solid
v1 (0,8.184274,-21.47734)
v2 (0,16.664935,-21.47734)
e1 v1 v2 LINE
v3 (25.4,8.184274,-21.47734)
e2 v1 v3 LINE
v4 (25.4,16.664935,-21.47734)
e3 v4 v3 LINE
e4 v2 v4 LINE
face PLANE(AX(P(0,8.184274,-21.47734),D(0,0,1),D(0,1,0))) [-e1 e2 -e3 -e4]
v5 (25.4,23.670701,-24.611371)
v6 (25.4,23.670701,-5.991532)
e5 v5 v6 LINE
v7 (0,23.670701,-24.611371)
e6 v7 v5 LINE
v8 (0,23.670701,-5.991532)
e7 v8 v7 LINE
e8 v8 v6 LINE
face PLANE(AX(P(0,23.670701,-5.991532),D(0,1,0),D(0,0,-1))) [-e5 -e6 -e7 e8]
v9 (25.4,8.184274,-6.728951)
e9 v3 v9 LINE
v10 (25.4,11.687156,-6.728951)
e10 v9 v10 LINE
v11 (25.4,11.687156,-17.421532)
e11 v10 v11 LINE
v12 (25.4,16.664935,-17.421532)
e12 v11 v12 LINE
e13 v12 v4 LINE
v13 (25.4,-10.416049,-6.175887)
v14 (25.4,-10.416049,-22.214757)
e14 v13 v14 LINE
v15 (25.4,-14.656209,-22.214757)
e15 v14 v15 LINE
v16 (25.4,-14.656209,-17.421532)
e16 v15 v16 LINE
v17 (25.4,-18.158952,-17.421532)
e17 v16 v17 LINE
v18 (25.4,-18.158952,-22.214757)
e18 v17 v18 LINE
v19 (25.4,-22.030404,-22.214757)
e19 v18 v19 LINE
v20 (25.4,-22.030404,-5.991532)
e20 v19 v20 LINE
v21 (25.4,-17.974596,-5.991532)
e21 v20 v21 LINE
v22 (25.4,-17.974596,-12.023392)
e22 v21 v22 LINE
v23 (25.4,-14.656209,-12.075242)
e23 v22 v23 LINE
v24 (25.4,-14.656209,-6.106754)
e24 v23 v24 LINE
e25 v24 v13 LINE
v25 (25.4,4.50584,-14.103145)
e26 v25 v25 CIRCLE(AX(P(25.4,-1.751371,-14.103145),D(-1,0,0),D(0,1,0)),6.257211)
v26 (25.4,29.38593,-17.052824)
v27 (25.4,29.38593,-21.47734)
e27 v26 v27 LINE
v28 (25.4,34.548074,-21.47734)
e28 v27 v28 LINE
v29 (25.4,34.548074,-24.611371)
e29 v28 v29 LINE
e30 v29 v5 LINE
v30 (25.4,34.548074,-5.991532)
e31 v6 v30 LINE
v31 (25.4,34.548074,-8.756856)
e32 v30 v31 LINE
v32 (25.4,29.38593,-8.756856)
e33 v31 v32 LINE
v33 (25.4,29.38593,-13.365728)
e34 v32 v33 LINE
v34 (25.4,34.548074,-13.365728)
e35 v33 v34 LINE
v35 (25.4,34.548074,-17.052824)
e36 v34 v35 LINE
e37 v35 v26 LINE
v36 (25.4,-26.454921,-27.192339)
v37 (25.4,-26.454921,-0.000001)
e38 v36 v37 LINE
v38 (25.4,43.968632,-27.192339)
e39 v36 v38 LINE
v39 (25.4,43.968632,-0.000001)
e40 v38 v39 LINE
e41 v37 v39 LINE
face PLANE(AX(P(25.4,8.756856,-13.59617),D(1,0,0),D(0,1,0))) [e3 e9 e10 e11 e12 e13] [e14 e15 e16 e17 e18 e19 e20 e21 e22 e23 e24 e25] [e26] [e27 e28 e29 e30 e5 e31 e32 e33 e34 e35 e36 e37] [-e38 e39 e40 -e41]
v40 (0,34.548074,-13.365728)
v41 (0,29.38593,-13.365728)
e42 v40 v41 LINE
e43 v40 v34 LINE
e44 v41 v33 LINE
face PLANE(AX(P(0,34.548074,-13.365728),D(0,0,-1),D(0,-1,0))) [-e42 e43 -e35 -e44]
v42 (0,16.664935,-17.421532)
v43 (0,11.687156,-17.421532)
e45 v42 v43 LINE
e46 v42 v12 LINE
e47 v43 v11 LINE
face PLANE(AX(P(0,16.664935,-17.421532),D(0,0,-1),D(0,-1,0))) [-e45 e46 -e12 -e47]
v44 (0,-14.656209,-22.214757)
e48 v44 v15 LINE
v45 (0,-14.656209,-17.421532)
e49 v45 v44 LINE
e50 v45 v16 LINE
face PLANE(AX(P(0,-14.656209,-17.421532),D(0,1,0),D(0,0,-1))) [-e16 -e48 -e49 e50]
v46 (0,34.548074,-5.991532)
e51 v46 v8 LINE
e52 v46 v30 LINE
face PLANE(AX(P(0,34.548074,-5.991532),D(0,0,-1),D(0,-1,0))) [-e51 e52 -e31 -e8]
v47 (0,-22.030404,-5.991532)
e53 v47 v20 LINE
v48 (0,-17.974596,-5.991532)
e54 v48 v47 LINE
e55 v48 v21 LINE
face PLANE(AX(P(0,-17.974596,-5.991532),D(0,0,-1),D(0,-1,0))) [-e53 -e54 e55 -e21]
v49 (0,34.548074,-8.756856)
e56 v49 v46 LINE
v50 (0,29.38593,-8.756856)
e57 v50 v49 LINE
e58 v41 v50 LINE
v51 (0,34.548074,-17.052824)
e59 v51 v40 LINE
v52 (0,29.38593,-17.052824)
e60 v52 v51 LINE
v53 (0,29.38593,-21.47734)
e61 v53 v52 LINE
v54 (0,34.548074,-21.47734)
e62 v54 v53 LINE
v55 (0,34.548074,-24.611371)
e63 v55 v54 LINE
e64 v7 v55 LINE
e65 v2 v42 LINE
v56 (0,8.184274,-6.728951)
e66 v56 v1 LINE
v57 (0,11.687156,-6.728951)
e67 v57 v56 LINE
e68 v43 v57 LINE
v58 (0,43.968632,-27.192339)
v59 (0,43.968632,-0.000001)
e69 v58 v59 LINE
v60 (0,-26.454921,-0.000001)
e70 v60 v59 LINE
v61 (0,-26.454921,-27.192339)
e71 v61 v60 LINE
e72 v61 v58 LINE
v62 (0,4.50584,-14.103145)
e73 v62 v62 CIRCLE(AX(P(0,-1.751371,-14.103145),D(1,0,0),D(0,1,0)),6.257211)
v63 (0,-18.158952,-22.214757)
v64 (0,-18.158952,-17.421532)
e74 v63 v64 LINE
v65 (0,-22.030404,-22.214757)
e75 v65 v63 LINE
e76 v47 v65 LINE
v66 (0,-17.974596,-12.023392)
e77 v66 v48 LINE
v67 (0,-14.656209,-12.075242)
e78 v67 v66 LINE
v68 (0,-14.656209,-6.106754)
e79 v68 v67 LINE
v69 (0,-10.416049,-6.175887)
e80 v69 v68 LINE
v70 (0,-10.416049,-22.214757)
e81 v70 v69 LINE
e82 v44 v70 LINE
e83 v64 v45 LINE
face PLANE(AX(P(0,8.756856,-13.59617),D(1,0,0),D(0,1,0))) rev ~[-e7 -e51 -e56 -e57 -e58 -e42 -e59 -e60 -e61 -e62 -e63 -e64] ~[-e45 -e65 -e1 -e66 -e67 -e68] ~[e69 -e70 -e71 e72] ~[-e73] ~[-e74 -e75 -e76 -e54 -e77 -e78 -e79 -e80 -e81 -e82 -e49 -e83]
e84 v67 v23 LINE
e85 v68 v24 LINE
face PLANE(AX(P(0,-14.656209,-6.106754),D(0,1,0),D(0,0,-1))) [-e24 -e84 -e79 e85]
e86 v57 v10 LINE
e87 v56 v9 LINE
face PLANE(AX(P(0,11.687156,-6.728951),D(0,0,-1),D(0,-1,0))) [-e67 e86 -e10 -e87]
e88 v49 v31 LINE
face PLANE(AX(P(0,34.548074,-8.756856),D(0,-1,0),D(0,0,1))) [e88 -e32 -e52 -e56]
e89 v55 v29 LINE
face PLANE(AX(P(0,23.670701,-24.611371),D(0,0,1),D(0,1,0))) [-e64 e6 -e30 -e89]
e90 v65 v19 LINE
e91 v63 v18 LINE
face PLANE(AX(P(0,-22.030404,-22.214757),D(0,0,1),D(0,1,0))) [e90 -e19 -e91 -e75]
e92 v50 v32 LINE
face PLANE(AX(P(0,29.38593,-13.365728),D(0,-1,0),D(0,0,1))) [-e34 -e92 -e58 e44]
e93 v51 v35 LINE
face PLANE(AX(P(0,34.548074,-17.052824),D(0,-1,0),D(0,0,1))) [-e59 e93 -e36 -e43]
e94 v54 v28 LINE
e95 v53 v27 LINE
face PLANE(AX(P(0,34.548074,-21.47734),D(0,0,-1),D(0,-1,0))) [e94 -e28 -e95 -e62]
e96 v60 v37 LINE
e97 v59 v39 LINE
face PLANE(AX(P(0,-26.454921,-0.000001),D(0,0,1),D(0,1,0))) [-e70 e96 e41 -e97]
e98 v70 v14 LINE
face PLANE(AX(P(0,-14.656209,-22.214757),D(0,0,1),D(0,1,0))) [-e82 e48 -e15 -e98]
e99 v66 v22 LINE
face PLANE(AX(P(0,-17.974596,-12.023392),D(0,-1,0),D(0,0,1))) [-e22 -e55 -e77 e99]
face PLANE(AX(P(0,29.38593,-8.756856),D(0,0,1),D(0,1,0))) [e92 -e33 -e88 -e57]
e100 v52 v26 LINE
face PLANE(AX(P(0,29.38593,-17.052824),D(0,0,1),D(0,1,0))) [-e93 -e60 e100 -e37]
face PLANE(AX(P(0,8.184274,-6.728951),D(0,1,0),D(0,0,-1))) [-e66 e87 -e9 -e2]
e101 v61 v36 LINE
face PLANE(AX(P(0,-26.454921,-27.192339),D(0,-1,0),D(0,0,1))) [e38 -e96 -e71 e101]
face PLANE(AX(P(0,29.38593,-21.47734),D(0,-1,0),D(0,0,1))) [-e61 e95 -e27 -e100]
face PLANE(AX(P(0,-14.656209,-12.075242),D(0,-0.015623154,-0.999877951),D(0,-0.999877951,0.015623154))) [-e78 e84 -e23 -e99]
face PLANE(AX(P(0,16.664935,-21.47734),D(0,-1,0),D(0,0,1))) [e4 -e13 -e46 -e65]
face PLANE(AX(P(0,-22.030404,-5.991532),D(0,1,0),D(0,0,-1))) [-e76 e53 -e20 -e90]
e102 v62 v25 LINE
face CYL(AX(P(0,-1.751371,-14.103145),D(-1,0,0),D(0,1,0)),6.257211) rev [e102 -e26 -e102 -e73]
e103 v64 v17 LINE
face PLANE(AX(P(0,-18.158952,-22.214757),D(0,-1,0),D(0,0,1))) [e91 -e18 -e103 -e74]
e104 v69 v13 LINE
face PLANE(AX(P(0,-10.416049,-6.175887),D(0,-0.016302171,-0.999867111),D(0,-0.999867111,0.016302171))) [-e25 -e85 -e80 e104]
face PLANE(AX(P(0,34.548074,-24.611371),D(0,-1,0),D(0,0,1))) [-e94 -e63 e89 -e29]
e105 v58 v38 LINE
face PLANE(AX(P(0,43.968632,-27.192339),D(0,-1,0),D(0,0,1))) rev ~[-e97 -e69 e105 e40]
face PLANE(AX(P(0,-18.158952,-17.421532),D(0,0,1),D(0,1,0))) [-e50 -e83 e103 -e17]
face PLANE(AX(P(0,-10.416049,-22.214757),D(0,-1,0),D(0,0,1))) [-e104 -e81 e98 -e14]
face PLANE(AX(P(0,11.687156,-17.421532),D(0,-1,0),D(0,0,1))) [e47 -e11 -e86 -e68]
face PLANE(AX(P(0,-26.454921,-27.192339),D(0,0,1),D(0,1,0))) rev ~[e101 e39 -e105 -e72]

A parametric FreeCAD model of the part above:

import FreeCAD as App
import Part
import Sketcher
Q = App.Units.Quantity


def add_polygon(sketch, points):
    """Adds a closed chain of lines whose ends are joined by coincident constraints."""
    first, n = sketch.GeometryCount, len(points)
    for a, b in zip(points, points[1:] + points[:1]):
        sketch.addGeometry(Part.LineSegment(App.Vector(*a, 0), App.Vector(*b, 0)), False)
    for i in range(n):
        sketch.addConstraint(Sketcher.Constraint("Coincident", first + i, 2, first + (i + 1) % n, 1))

doc = App.newDocument("Part")
body = doc.addObject("PartDesign::Body", "Body")

sketch1 = body.newObject("Sketcher::SketchObject", "Sketch")
sketch1.AttachmentSupport = (doc.getObject("YZ_Plane"), [""])
sketch1.MapMode = "FlatFace"
add_polygon(sketch1, [(-26, 0), (-26, -27), (44, -27), (44, 0)])
sketch1.addConstraint(Sketcher.Constraint("Vertical", 0))
sketch1.addConstraint(Sketcher.Constraint("Horizontal", 1))
sketch1.addConstraint(Sketcher.Constraint("Vertical", 2))
sketch1.addConstraint(Sketcher.Constraint("Horizontal", 3))
sketch1.addConstraint(Sketcher.Constraint("PointOnObject", 2, 2, -1))
sketch1.addConstraint(Sketcher.Constraint("DistanceY", 0, 2, 0, 1, Q("27.192339 mm")))
sketch1.addConstraint(Sketcher.Constraint("DistanceX", 1, 1, 1, 2, Q("70.423553 mm")))
sketch1.addConstraint(Sketcher.Constraint("DistanceX", 0, 2, -1, 1, Q("26.454921 mm")))
pad1 = body.newObject("PartDesign::Pad", "Pad")
pad1.Profile = sketch1
pad1.Length = Q("1 in")

sketch2 = body.newObject("Sketcher::SketchObject", "Sketch001")
sketch2.AttachmentSupport = (doc.getObject("YZ_Plane"), [""])
sketch2.MapMode = "FlatFace"
sketch2.addGeometry(Part.Circle(App.Vector(-1.8, -14.1, 0), App.Vector(0, 0, 1), 6.3), False)
add_polygon(sketch2, [(-18, -6), (-22, -6), (-22, -22.2), (-18.2, -22.2), (-18.2, -17.4), (-14.7, -17.4), (-14.7, -22.2), (-10.4, -22.2), (-10.4, -6.2), (-14.7, -6.1), (-14.7, -12.1), (-18, -12)])
add_polygon(sketch2, [(11.7, -6.7), (8.2, -6.7), (8.2, -21.5), (16.7, -21.5), (16.7, -17.4), (11.7, -17.4)])
add_polygon(sketch2, [(34.5, -6), (23.7, -6), (23.7, -24.6), (34.5, -24.6), (34.5, -21.5), (29.4, -21.5), (29.4, -17.1), (34.5, -17.1), (34.5, -13.4), (29.4, -13.4), (29.4, -8.8), (34.5, -8.8)])
sketch2.addConstraint(Sketcher.Constraint("Horizontal", 1))
sketch2.addConstraint(Sketcher.Constraint("Vertical", 2))
sketch2.addConstraint(Sketcher.Constraint("Horizontal", 3))
sketch2.addConstraint(Sketcher.Constraint("Vertical", 4))
sketch2.addConstraint(Sketcher.Constraint("Horizontal", 5))
sketch2.addConstraint(Sketcher.Constraint("Vertical", 6))
sketch2.addConstraint(Sketcher.Constraint("Horizontal", 7))
sketch2.addConstraint(Sketcher.Constraint("Vertical", 8))
sketch2.addConstraint(Sketcher.Constraint("Vertical", 10))
sketch2.addConstraint(Sketcher.Constraint("Vertical", 12))
sketch2.addConstraint(Sketcher.Constraint("Horizontal", 13))
sketch2.addConstraint(Sketcher.Constraint("Vertical", 14))
sketch2.addConstraint(Sketcher.Constraint("Horizontal", 15))
sketch2.addConstraint(Sketcher.Constraint("Vertical", 16))
sketch2.addConstraint(Sketcher.Constraint("Horizontal", 17))
sketch2.addConstraint(Sketcher.Constraint("Vertical", 18))
sketch2.addConstraint(Sketcher.Constraint("Horizontal", 19))
sketch2.addConstraint(Sketcher.Constraint("Vertical", 20))
sketch2.addConstraint(Sketcher.Constraint("Horizontal", 21))
sketch2.addConstraint(Sketcher.Constraint("Vertical", 22))
sketch2.addConstraint(Sketcher.Constraint("Horizontal", 23))
sketch2.addConstraint(Sketcher.Constraint("Vertical", 24))
sketch2.addConstraint(Sketcher.Constraint("Horizontal", 25))
sketch2.addConstraint(Sketcher.Constraint("Vertical", 26))
sketch2.addConstraint(Sketcher.Constraint("Horizontal", 27))
sketch2.addConstraint(Sketcher.Constraint("Vertical", 28))
sketch2.addConstraint(Sketcher.Constraint("Horizontal", 29))
sketch2.addConstraint(Sketcher.Constraint("Vertical", 30))
sketch2.addConstraint(Sketcher.Constraint("Horizontal", 3, 2, 6, 2))
sketch2.addConstraint(Sketcher.Constraint("Horizontal", 5, 2, 16, 2))
sketch2.addConstraint(Sketcher.Constraint("Horizontal", 12, 2, 19, 2))
sketch2.addConstraint(Sketcher.Constraint("Horizontal", 15, 2, 22, 2))
sketch2.addConstraint(Sketcher.Constraint("Vertical", 6, 2, 9, 2))
sketch2.addConstraint(Sketcher.Constraint("Vertical", 22, 2, 25, 2))
sketch2.addConstraint(Sketcher.Constraint("Vertical", 24, 2, 27, 2))
sketch2.addConstraint(Sketcher.Constraint("Vertical", 26, 2, 29, 2))
sketch2.addConstraint(Sketcher.Constraint("Equal", 1, 16))
sketch2.addConstraint(Sketcher.Constraint("DistanceY", 4, 2, 1, 2, Q("0.45 in")))
sketch2.addConstraint(Sketcher.Constraint("Diameter", 0, Q("12.514422 mm")))
sketch2.addConstraint(Sketcher.Constraint("DistanceX", -1, 1, 15, 2, Q("0.6560998 in")))
sketch2.addConstraint(Sketcher.Constraint("DistanceX", 1, 2, 1, 1, Q("4.055808 mm")))
sketch2.addConstraint(Sketcher.Constraint("DistanceX", 7, 1, 7, 2, Q("4.24016 mm")))
sketch2.addConstraint(Sketcher.Constraint("DistanceX", 13, 2, 13, 1, Q("3.502882 mm")))
sketch2.addConstraint(Sketcher.Constraint("DistanceX", 15, 1, 15, 2, Q("8.480661 mm")))
sketch2.addConstraint(Sketcher.Constraint("DistanceY", 8, 1, 8, 2, Q("16.03887 mm")))
sketch2.addConstraint(Sketcher.Constraint("DistanceY", 12, 1, 12, 2, Q("6.03186 mm")))
sketch2.addConstraint(Sketcher.Constraint("DistanceY", 14, 2, 14, 1, Q("14.748389 mm")))
sketch2.addConstraint(Sketcher.Constraint("DistanceY", 20, 2, 20, 1, Q("18.619839 mm")))
sketch2.addConstraint(Sketcher.Constraint("DistanceX", -1, 1, 19, 2, Q("23.670701 mm")))
sketch2.addConstraint(Sketcher.Constraint("DistanceX", 3, 1, 3, 2, Q("3.871452 mm")))
sketch2.addConstraint(Sketcher.Constraint("DistanceX", 5, 1, 5, 2, Q("3.502743 mm")))
sketch2.addConstraint(Sketcher.Constraint("DistanceX", 19, 2, 19, 1, Q("10.877373 mm")))
sketch2.addConstraint(Sketcher.Constraint("DistanceX", 23, 2, 23, 1, Q("5.162144 mm")))
sketch2.addConstraint(Sketcher.Constraint("DistanceY", 2, 2, 2, 1, Q("16.223225 mm")))
sketch2.addConstraint(Sketcher.Constraint("DistanceY", 10, 2, 10, 1, Q("5.968488 mm")))
sketch2.addConstraint(Sketcher.Constraint("DistanceY", 24, 1, 24, 2, Q("4.424516 mm")))
sketch2.addConstraint(Sketcher.Constraint("DistanceY", 26, 1, 26, 2, Q("3.687096 mm")))
sketch2.addConstraint(Sketcher.Constraint("DistanceY", 28, 1, 28, 2, Q("4.608872 mm")))
sketch2.addConstraint(Sketcher.Constraint("DistanceX", 0, 3, -1, 1, Q("1.751371 mm")))
sketch2.addConstraint(Sketcher.Constraint("DistanceX", 3, 2, -1, 1, Q("18.158952 mm")))
sketch2.addConstraint(Sketcher.Constraint("DistanceY", 4, 2, -1, 1, Q("17.421532 mm")))
sketch2.addConstraint(Sketcher.Constraint("DistanceY", 10, 2, -1, 1, Q("12.075242 mm")))
sketch2.addConstraint(Sketcher.Constraint("DistanceY", 2, 2, 0, 3, Q("8.111612 mm")))
pocket1 = body.newObject("PartDesign::Pocket", "Pocket")
pocket1.Profile = sketch2
pocket1.Length = Q("1.5 in")
pocket1.Reversed = True

doc.recompute()
